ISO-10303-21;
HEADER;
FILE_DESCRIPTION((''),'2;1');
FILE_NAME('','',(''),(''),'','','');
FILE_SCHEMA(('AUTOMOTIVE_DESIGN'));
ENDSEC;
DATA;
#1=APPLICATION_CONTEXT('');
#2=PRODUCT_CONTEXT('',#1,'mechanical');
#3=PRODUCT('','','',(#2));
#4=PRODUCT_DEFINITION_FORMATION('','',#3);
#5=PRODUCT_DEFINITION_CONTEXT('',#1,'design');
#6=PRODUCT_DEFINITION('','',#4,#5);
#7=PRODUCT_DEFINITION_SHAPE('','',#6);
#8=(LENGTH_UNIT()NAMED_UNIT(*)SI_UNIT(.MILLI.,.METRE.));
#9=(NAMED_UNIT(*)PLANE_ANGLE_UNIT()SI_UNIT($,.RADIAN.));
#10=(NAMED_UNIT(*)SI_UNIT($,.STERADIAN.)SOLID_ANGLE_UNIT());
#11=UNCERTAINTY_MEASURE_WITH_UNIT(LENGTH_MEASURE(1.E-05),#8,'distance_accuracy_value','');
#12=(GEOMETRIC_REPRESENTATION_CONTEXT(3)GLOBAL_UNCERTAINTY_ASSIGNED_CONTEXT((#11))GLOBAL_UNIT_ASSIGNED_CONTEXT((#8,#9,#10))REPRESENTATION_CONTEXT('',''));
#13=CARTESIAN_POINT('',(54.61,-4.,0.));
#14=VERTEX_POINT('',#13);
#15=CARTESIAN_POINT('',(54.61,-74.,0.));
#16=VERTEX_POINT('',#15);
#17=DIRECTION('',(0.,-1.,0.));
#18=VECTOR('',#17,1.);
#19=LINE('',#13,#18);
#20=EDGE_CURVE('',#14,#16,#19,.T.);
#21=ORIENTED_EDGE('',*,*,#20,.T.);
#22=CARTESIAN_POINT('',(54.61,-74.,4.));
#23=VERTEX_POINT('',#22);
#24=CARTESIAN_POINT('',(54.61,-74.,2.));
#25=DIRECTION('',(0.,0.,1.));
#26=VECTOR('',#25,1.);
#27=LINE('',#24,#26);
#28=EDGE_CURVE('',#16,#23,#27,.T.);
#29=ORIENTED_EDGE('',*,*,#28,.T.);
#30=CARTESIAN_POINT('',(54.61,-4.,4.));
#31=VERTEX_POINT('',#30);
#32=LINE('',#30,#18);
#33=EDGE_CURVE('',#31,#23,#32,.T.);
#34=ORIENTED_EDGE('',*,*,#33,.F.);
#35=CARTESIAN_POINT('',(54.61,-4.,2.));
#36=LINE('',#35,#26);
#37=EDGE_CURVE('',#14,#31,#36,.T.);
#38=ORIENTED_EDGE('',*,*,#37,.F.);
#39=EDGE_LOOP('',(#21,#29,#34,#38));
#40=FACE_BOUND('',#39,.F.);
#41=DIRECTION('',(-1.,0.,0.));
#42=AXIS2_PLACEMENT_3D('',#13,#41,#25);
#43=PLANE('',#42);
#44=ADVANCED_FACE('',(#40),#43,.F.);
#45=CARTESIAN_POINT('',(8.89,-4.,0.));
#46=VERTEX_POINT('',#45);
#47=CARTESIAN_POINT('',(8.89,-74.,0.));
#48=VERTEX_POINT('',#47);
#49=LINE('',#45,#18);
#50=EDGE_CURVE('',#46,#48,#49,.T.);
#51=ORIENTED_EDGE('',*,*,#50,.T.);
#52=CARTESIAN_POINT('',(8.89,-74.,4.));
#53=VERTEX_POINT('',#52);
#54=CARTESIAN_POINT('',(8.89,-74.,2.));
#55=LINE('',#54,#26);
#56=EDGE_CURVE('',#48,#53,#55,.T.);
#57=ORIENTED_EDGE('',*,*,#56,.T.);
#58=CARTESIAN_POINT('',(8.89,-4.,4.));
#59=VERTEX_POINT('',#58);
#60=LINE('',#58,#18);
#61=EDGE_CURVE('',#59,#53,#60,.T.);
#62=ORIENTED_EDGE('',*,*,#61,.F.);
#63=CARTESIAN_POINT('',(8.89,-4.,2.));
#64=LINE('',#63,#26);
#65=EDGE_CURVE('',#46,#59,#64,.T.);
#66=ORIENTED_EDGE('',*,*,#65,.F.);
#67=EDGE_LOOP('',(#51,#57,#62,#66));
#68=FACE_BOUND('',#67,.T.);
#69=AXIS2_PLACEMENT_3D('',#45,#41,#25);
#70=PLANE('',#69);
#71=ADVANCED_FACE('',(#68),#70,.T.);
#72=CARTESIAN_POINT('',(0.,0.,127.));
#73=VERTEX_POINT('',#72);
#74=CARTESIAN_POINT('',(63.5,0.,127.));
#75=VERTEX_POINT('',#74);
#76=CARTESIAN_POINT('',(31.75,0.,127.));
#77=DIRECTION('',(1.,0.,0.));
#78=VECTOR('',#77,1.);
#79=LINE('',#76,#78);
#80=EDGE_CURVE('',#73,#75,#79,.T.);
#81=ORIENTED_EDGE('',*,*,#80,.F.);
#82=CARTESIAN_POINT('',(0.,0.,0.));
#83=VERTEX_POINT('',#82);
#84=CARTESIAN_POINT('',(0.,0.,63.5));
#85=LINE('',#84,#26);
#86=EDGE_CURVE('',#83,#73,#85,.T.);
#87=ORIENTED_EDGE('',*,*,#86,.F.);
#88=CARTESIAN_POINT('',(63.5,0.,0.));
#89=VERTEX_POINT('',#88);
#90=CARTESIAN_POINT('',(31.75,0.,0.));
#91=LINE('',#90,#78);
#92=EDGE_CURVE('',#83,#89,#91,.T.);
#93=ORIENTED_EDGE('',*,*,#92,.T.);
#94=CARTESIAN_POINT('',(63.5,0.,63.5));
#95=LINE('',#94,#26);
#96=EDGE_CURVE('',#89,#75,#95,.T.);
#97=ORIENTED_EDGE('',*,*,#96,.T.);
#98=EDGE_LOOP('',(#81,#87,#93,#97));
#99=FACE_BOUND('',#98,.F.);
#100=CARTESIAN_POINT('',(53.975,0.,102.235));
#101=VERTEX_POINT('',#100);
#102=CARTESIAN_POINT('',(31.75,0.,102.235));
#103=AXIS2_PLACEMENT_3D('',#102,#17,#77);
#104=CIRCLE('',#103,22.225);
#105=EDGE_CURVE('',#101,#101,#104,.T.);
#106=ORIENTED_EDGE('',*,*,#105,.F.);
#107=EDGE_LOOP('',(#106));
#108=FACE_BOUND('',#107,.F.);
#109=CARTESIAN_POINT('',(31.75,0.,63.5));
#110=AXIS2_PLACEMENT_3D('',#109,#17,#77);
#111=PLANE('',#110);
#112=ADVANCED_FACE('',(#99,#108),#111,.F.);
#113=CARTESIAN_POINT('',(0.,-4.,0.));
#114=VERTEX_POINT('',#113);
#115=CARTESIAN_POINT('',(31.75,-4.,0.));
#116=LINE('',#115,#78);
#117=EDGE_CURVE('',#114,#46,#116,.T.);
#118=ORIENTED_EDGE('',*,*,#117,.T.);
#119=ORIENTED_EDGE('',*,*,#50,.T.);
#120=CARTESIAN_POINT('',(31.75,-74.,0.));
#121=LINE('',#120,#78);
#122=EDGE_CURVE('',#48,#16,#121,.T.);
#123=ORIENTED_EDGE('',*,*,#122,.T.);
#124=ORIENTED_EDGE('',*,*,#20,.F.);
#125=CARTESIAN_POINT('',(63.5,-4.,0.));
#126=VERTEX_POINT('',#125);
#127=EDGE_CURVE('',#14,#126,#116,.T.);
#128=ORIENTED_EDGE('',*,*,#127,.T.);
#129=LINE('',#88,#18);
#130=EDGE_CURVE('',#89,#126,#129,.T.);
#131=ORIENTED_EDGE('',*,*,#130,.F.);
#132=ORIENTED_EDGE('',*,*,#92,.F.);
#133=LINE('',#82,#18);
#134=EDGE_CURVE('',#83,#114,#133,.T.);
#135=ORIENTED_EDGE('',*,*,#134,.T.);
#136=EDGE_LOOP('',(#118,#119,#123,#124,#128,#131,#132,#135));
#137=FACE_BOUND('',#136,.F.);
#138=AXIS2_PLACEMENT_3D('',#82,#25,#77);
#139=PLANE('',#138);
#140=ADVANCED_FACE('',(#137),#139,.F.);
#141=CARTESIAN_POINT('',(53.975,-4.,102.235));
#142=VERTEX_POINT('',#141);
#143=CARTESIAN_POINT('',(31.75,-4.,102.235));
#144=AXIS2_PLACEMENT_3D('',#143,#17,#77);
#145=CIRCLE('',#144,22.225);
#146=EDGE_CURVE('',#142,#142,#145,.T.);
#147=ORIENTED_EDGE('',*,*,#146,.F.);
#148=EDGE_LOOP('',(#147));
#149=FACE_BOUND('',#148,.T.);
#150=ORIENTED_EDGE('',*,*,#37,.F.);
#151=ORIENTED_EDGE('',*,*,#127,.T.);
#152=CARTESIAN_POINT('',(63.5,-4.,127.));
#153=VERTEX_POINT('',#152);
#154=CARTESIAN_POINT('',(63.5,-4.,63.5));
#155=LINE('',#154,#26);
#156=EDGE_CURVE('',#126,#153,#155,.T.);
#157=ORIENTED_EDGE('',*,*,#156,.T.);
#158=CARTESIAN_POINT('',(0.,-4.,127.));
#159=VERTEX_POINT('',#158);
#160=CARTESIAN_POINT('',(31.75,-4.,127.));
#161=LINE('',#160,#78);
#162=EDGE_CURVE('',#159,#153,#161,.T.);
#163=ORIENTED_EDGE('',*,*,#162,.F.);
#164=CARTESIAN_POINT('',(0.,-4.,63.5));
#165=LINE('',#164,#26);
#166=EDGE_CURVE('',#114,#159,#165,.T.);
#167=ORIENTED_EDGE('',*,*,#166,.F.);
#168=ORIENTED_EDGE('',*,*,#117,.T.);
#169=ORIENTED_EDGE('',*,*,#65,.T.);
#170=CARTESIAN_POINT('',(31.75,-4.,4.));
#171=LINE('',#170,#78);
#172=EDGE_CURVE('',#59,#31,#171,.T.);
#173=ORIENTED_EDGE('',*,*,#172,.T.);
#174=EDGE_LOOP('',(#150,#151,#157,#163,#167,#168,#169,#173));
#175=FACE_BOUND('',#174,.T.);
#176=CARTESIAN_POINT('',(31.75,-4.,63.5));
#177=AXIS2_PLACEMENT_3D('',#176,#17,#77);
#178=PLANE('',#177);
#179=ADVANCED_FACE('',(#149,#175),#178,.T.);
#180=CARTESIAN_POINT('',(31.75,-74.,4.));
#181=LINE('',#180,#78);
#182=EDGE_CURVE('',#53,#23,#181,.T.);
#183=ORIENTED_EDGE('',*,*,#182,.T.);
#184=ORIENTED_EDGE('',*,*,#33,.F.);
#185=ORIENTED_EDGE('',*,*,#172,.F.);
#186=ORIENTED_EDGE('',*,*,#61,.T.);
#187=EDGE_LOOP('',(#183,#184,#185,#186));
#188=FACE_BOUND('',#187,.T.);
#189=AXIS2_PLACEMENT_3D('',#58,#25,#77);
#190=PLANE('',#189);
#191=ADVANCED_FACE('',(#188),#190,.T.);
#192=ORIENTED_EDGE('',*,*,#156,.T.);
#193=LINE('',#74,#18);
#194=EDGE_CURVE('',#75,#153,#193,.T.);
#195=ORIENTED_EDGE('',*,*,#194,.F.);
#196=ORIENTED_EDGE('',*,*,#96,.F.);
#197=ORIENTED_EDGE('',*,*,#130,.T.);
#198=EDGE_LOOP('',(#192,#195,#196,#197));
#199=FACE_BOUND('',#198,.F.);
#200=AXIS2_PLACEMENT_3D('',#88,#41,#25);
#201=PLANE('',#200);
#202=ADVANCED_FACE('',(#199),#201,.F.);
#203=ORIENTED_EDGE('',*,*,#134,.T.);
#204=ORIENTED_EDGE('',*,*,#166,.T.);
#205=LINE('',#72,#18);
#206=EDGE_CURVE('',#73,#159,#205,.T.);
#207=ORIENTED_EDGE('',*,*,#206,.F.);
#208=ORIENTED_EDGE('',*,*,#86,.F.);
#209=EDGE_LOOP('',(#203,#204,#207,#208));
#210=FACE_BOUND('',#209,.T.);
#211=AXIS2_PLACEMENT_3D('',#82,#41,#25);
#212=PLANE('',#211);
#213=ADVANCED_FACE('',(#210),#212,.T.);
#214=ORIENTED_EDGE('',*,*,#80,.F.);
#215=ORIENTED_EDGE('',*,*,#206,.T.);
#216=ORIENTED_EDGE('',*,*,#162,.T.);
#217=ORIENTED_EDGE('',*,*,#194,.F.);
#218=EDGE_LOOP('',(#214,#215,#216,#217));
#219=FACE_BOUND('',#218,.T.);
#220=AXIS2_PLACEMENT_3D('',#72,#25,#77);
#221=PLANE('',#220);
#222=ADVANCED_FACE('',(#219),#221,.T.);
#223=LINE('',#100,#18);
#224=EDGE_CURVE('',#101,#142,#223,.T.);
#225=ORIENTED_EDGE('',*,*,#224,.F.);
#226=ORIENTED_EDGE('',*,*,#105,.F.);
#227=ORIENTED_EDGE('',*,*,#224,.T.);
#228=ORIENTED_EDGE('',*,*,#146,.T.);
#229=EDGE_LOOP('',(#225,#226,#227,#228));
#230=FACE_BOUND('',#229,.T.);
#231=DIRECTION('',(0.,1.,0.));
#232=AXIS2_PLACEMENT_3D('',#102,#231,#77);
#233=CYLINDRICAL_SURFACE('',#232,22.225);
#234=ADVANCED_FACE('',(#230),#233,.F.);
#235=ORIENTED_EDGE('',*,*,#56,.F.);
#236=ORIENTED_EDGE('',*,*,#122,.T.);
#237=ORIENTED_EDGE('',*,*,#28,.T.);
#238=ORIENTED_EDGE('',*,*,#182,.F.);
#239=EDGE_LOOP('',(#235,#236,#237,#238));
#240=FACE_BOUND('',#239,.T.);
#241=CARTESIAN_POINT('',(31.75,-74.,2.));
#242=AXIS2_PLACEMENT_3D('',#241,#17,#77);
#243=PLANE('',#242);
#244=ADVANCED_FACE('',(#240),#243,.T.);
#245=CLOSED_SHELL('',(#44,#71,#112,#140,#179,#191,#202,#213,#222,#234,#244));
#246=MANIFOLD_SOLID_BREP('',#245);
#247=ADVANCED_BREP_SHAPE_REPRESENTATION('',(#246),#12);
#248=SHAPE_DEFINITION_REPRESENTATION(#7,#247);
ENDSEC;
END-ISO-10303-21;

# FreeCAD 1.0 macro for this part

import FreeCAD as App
import Part
import Sketcher
Q = App.Units.Quantity


def add_polygon(sketch, points):
    """Adds a closed chain of lines whose ends are joined by coincident constraints."""
    first, n = sketch.GeometryCount, len(points)
    for a, b in zip(points, points[1:] + points[:1]):
        sketch.addGeometry(Part.LineSegment(App.Vector(*a, 0), App.Vector(*b, 0)), False)
    for i in range(n):
        sketch.addConstraint(Sketcher.Constraint("Coincident", first + i, 2, first + (i + 1) % n, 1))

doc = App.newDocument("Part")
body = doc.addObject("PartDesign::Body", "Body")

# Sketch on XZ plane
sketch1 = body.newObject("Sketcher::SketchObject", "Sketch")
sketch1.AttachmentSupport = (doc.getObject("XZ_Plane"), [""])
sketch1.MapMode = "FlatFace"
add_polygon(sketch1, [(0, 127), (0, 0), (63.5, 0), (63.5, 127)])  # lines 0-3
sketch1.addGeometry(Part.Circle(App.Vector(31.75, 102.235, 0), App.Vector(0, 0, 1), 22.225), False)  # 4
sketch1.addConstraint([
    Sketcher.Constraint("Vertical", 0),
    Sketcher.Constraint("Horizontal", 1),
    Sketcher.Constraint("Vertical", 2),
    Sketcher.Constraint("Horizontal", 3),
    Sketcher.Constraint("Coincident", 0, 2, -1, 1),
    Sketcher.Constraint("Diameter", 4, Q("1.75 in")),
    Sketcher.Constraint("DistanceY", 0, 2, 0, 1, Q("5 in")),
    Sketcher.Constraint("DistanceX", 1, 1, 1, 2, Q("2.5 in")),
    Sketcher.Constraint("DistanceX", -1, 1, 4, 3, Q("1.25 in")),
    Sketcher.Constraint("DistanceY", -1, 1, 4, 3, Q("4.025 in")),
])
pad1 = body.newObject("PartDesign::Pad", "Pad")
pad1.Profile = sketch1
pad1.Length = 4

# Sketch on XZ plane
sketch2 = body.newObject("Sketcher::SketchObject", "Sketch001")
sketch2.AttachmentSupport = (doc.getObject("XZ_Plane"), [""])
sketch2.MapMode = "FlatFace"
sketch2.AttachmentOffset = App.Placement(App.Vector(0, 0, 4), App.Rotation())
add_polygon(sketch2, [(8.89, 4), (8.89, 0), (54.61, 0), (54.61, 4)])  # lines 0-3
sketch2.addConstraint([
    Sketcher.Constraint("Vertical", 0),
    Sketcher.Constraint("Horizontal", 1),
    Sketcher.Constraint("Vertical", 2),
    Sketcher.Constraint("Horizontal", 3),
    Sketcher.Constraint("PointOnObject", 0, 2, -1),
    Sketcher.Constraint("DistanceX", 1, 1, 1, 2, Q("1.8 in")),
    Sketcher.Constraint("DistanceX", -1, 1, 0, 2, Q("0.35 in")),
    Sketcher.Constraint("DistanceY", 0, 2, 0, 1, Q("4 mm")),
])
pad2 = body.newObject("PartDesign::Pad", "Pad001")
pad2.Profile = sketch2
pad2.Length = 70

doc.recompute()
